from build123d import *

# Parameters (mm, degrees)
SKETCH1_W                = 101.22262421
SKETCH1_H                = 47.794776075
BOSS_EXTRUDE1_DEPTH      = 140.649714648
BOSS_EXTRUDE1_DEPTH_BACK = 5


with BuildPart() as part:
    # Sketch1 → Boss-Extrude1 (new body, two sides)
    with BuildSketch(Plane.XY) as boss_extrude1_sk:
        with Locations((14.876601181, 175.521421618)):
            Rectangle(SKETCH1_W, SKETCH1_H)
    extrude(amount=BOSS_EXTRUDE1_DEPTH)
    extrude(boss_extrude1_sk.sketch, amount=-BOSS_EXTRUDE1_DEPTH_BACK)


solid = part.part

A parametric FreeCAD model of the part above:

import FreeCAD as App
import Part
import Sketcher
from FreeCAD import Vector


def add_polygon(sketch, points):
    """Adds a closed chain of lines whose ends are joined by coincident constraints."""
    first, n = sketch.GeometryCount, len(points)
    for a, b in zip(points, points[1:] + points[:1]):
        sketch.addGeometry(Part.LineSegment(App.Vector(*a, 0), App.Vector(*b, 0)), False)
    for i in range(n):
        sketch.addConstraint(Sketcher.Constraint("Coincident", first + i, 2, first + (i + 1) % n, 1))

doc = App.newDocument("Part")
body = doc.addObject("PartDesign::Body", "Body")

# Sketch on XY plane
sketch1 = body.newObject("Sketcher::SketchObject", "Sketch")
sketch1.AttachmentSupport = (doc.getObject("XY_Plane"), [""])
sketch1.MapMode = "FlatFace"
add_polygon(sketch1, [(-35.734711, 199.41881), (-35.734711, 151.624034), (65.487913, 151.624034), (65.487913, 199.41881)])  # lines 0-3
sketch1.addConstraint(Sketcher.Constraint("Vertical", 0))
sketch1.addConstraint(Sketcher.Constraint("Horizontal", 1))
sketch1.addConstraint(Sketcher.Constraint("Vertical", 2))
sketch1.addConstraint(Sketcher.Constraint("Horizontal", 3))
sketch1.addConstraint(Sketcher.Constraint("DistanceX", 1, 1, 1, 2, 101.222624))
sketch1.addConstraint(Sketcher.Constraint("DistanceY", 0, 2, 0, 1, 47.794776))
sketch1.addConstraint(Sketcher.Constraint("DistanceX", 0, 2, -1, 1, 35.734711))
sketch1.addConstraint(Sketcher.Constraint("DistanceY", -1, 1, 2, 2, 199.41881))
pad1 = body.newObject("PartDesign::Pad", "Pad")
pad1.Profile = sketch1
pad1.Type = "TwoLengths"
pad1.Length = 140.649715
pad1.Length2 = 5

doc.recompute()
